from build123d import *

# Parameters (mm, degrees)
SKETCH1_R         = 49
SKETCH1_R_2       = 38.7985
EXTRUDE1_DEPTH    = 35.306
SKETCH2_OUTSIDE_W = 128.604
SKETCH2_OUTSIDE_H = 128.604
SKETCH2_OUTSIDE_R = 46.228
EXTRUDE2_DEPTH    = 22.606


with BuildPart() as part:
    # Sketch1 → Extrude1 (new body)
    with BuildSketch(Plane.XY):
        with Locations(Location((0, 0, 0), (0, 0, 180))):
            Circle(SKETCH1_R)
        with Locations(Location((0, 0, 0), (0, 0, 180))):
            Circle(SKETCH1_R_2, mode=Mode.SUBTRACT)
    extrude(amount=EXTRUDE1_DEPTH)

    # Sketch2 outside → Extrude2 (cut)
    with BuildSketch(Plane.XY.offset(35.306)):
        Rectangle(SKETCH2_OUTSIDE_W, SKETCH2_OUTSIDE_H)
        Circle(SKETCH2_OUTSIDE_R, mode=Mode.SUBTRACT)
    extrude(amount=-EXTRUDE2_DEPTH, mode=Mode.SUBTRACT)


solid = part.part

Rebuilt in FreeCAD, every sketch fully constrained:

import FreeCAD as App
import Part
import Sketcher
Q = App.Units.Quantity


def add_polygon(sketch, points):
    """Adds a closed chain of lines whose ends are joined by coincident constraints."""
    first, n = sketch.GeometryCount, len(points)
    for a, b in zip(points, points[1:] + points[:1]):
        sketch.addGeometry(Part.LineSegment(App.Vector(*a, 0), App.Vector(*b, 0)), False)
    for i in range(n):
        sketch.addConstraint(Sketcher.Constraint("Coincident", first + i, 2, first + (i + 1) % n, 1))

doc = App.newDocument("Part")
body = doc.addObject("PartDesign::Body", "Body")

# Sketch on XY plane
sketch1 = body.newObject("Sketcher::SketchObject", "Sketch")
sketch1.AttachmentSupport = (doc.getObject("XY_Plane"), [""])
sketch1.MapMode = "FlatFace"
sketch1.addGeometry(Part.Circle(App.Vector(0, 0, 0), App.Vector(0, 0, 1), 49), False)
sketch1.addGeometry(Part.Circle(App.Vector(0, 0, 0), App.Vector(0, 0, 1), 38.7985), False)
sketch1.addConstraint(Sketcher.Constraint("Coincident", 0, 3, -1, 1))
sketch1.addConstraint(Sketcher.Constraint("Coincident", 1, 3, -1, 1))
sketch1.addConstraint(Sketcher.Constraint("Diameter", 1, Q("3.055 in")))
sketch1.addConstraint(Sketcher.Constraint("Diameter", 0, Q("98 mm")))
pad1 = body.newObject("PartDesign::Pad", "Pad")
pad1.Profile = sketch1
pad1.Length = Q("1.39 in")

# Sketch on XY plane
sketch2 = body.newObject("Sketcher::SketchObject", "Sketch001")
sketch2.AttachmentSupport = (doc.getObject("XY_Plane"), [""])
sketch2.MapMode = "FlatFace"
sketch2.AttachmentOffset = App.Placement(App.Vector(0, 0, 1.39 * 25.4), App.Rotation())
add_polygon(sketch2, [(-64.302, 64.302), (-64.302, -64.302), (64.302, -64.302), (64.302, 64.302)])  # lines 0-3
sketch2.addGeometry(Part.Circle(App.Vector(0, 0, 0), App.Vector(0, 0, 1), 46.228), False)  # 4
sketch2.addConstraint(Sketcher.Constraint("Vertical", 0))
sketch2.addConstraint(Sketcher.Constraint("Horizontal", 1))
sketch2.addConstraint(Sketcher.Constraint("Vertical", 2))
sketch2.addConstraint(Sketcher.Constraint("Horizontal", 3))
sketch2.addConstraint(Sketcher.Constraint("Coincident", 4, 3, -1, 1))
sketch2.addConstraint(Sketcher.Constraint("Symmetric", 0, 2, 2, 2, -1, 1))
sketch2.addConstraint(Sketcher.Constraint("Equal", 3, 0))
sketch2.addConstraint(Sketcher.Constraint("Diameter", 4, Q("3.64 in")))
sketch2.addConstraint(Sketcher.Constraint("DistanceX", 1, 1, 1, 2, Q("128.604 mm")))
pocket1 = body.newObject("PartDesign::Pocket", "Pocket")
pocket1.Profile = sketch2
pocket1.Length = Q("0.89 in")

doc.recompute()
